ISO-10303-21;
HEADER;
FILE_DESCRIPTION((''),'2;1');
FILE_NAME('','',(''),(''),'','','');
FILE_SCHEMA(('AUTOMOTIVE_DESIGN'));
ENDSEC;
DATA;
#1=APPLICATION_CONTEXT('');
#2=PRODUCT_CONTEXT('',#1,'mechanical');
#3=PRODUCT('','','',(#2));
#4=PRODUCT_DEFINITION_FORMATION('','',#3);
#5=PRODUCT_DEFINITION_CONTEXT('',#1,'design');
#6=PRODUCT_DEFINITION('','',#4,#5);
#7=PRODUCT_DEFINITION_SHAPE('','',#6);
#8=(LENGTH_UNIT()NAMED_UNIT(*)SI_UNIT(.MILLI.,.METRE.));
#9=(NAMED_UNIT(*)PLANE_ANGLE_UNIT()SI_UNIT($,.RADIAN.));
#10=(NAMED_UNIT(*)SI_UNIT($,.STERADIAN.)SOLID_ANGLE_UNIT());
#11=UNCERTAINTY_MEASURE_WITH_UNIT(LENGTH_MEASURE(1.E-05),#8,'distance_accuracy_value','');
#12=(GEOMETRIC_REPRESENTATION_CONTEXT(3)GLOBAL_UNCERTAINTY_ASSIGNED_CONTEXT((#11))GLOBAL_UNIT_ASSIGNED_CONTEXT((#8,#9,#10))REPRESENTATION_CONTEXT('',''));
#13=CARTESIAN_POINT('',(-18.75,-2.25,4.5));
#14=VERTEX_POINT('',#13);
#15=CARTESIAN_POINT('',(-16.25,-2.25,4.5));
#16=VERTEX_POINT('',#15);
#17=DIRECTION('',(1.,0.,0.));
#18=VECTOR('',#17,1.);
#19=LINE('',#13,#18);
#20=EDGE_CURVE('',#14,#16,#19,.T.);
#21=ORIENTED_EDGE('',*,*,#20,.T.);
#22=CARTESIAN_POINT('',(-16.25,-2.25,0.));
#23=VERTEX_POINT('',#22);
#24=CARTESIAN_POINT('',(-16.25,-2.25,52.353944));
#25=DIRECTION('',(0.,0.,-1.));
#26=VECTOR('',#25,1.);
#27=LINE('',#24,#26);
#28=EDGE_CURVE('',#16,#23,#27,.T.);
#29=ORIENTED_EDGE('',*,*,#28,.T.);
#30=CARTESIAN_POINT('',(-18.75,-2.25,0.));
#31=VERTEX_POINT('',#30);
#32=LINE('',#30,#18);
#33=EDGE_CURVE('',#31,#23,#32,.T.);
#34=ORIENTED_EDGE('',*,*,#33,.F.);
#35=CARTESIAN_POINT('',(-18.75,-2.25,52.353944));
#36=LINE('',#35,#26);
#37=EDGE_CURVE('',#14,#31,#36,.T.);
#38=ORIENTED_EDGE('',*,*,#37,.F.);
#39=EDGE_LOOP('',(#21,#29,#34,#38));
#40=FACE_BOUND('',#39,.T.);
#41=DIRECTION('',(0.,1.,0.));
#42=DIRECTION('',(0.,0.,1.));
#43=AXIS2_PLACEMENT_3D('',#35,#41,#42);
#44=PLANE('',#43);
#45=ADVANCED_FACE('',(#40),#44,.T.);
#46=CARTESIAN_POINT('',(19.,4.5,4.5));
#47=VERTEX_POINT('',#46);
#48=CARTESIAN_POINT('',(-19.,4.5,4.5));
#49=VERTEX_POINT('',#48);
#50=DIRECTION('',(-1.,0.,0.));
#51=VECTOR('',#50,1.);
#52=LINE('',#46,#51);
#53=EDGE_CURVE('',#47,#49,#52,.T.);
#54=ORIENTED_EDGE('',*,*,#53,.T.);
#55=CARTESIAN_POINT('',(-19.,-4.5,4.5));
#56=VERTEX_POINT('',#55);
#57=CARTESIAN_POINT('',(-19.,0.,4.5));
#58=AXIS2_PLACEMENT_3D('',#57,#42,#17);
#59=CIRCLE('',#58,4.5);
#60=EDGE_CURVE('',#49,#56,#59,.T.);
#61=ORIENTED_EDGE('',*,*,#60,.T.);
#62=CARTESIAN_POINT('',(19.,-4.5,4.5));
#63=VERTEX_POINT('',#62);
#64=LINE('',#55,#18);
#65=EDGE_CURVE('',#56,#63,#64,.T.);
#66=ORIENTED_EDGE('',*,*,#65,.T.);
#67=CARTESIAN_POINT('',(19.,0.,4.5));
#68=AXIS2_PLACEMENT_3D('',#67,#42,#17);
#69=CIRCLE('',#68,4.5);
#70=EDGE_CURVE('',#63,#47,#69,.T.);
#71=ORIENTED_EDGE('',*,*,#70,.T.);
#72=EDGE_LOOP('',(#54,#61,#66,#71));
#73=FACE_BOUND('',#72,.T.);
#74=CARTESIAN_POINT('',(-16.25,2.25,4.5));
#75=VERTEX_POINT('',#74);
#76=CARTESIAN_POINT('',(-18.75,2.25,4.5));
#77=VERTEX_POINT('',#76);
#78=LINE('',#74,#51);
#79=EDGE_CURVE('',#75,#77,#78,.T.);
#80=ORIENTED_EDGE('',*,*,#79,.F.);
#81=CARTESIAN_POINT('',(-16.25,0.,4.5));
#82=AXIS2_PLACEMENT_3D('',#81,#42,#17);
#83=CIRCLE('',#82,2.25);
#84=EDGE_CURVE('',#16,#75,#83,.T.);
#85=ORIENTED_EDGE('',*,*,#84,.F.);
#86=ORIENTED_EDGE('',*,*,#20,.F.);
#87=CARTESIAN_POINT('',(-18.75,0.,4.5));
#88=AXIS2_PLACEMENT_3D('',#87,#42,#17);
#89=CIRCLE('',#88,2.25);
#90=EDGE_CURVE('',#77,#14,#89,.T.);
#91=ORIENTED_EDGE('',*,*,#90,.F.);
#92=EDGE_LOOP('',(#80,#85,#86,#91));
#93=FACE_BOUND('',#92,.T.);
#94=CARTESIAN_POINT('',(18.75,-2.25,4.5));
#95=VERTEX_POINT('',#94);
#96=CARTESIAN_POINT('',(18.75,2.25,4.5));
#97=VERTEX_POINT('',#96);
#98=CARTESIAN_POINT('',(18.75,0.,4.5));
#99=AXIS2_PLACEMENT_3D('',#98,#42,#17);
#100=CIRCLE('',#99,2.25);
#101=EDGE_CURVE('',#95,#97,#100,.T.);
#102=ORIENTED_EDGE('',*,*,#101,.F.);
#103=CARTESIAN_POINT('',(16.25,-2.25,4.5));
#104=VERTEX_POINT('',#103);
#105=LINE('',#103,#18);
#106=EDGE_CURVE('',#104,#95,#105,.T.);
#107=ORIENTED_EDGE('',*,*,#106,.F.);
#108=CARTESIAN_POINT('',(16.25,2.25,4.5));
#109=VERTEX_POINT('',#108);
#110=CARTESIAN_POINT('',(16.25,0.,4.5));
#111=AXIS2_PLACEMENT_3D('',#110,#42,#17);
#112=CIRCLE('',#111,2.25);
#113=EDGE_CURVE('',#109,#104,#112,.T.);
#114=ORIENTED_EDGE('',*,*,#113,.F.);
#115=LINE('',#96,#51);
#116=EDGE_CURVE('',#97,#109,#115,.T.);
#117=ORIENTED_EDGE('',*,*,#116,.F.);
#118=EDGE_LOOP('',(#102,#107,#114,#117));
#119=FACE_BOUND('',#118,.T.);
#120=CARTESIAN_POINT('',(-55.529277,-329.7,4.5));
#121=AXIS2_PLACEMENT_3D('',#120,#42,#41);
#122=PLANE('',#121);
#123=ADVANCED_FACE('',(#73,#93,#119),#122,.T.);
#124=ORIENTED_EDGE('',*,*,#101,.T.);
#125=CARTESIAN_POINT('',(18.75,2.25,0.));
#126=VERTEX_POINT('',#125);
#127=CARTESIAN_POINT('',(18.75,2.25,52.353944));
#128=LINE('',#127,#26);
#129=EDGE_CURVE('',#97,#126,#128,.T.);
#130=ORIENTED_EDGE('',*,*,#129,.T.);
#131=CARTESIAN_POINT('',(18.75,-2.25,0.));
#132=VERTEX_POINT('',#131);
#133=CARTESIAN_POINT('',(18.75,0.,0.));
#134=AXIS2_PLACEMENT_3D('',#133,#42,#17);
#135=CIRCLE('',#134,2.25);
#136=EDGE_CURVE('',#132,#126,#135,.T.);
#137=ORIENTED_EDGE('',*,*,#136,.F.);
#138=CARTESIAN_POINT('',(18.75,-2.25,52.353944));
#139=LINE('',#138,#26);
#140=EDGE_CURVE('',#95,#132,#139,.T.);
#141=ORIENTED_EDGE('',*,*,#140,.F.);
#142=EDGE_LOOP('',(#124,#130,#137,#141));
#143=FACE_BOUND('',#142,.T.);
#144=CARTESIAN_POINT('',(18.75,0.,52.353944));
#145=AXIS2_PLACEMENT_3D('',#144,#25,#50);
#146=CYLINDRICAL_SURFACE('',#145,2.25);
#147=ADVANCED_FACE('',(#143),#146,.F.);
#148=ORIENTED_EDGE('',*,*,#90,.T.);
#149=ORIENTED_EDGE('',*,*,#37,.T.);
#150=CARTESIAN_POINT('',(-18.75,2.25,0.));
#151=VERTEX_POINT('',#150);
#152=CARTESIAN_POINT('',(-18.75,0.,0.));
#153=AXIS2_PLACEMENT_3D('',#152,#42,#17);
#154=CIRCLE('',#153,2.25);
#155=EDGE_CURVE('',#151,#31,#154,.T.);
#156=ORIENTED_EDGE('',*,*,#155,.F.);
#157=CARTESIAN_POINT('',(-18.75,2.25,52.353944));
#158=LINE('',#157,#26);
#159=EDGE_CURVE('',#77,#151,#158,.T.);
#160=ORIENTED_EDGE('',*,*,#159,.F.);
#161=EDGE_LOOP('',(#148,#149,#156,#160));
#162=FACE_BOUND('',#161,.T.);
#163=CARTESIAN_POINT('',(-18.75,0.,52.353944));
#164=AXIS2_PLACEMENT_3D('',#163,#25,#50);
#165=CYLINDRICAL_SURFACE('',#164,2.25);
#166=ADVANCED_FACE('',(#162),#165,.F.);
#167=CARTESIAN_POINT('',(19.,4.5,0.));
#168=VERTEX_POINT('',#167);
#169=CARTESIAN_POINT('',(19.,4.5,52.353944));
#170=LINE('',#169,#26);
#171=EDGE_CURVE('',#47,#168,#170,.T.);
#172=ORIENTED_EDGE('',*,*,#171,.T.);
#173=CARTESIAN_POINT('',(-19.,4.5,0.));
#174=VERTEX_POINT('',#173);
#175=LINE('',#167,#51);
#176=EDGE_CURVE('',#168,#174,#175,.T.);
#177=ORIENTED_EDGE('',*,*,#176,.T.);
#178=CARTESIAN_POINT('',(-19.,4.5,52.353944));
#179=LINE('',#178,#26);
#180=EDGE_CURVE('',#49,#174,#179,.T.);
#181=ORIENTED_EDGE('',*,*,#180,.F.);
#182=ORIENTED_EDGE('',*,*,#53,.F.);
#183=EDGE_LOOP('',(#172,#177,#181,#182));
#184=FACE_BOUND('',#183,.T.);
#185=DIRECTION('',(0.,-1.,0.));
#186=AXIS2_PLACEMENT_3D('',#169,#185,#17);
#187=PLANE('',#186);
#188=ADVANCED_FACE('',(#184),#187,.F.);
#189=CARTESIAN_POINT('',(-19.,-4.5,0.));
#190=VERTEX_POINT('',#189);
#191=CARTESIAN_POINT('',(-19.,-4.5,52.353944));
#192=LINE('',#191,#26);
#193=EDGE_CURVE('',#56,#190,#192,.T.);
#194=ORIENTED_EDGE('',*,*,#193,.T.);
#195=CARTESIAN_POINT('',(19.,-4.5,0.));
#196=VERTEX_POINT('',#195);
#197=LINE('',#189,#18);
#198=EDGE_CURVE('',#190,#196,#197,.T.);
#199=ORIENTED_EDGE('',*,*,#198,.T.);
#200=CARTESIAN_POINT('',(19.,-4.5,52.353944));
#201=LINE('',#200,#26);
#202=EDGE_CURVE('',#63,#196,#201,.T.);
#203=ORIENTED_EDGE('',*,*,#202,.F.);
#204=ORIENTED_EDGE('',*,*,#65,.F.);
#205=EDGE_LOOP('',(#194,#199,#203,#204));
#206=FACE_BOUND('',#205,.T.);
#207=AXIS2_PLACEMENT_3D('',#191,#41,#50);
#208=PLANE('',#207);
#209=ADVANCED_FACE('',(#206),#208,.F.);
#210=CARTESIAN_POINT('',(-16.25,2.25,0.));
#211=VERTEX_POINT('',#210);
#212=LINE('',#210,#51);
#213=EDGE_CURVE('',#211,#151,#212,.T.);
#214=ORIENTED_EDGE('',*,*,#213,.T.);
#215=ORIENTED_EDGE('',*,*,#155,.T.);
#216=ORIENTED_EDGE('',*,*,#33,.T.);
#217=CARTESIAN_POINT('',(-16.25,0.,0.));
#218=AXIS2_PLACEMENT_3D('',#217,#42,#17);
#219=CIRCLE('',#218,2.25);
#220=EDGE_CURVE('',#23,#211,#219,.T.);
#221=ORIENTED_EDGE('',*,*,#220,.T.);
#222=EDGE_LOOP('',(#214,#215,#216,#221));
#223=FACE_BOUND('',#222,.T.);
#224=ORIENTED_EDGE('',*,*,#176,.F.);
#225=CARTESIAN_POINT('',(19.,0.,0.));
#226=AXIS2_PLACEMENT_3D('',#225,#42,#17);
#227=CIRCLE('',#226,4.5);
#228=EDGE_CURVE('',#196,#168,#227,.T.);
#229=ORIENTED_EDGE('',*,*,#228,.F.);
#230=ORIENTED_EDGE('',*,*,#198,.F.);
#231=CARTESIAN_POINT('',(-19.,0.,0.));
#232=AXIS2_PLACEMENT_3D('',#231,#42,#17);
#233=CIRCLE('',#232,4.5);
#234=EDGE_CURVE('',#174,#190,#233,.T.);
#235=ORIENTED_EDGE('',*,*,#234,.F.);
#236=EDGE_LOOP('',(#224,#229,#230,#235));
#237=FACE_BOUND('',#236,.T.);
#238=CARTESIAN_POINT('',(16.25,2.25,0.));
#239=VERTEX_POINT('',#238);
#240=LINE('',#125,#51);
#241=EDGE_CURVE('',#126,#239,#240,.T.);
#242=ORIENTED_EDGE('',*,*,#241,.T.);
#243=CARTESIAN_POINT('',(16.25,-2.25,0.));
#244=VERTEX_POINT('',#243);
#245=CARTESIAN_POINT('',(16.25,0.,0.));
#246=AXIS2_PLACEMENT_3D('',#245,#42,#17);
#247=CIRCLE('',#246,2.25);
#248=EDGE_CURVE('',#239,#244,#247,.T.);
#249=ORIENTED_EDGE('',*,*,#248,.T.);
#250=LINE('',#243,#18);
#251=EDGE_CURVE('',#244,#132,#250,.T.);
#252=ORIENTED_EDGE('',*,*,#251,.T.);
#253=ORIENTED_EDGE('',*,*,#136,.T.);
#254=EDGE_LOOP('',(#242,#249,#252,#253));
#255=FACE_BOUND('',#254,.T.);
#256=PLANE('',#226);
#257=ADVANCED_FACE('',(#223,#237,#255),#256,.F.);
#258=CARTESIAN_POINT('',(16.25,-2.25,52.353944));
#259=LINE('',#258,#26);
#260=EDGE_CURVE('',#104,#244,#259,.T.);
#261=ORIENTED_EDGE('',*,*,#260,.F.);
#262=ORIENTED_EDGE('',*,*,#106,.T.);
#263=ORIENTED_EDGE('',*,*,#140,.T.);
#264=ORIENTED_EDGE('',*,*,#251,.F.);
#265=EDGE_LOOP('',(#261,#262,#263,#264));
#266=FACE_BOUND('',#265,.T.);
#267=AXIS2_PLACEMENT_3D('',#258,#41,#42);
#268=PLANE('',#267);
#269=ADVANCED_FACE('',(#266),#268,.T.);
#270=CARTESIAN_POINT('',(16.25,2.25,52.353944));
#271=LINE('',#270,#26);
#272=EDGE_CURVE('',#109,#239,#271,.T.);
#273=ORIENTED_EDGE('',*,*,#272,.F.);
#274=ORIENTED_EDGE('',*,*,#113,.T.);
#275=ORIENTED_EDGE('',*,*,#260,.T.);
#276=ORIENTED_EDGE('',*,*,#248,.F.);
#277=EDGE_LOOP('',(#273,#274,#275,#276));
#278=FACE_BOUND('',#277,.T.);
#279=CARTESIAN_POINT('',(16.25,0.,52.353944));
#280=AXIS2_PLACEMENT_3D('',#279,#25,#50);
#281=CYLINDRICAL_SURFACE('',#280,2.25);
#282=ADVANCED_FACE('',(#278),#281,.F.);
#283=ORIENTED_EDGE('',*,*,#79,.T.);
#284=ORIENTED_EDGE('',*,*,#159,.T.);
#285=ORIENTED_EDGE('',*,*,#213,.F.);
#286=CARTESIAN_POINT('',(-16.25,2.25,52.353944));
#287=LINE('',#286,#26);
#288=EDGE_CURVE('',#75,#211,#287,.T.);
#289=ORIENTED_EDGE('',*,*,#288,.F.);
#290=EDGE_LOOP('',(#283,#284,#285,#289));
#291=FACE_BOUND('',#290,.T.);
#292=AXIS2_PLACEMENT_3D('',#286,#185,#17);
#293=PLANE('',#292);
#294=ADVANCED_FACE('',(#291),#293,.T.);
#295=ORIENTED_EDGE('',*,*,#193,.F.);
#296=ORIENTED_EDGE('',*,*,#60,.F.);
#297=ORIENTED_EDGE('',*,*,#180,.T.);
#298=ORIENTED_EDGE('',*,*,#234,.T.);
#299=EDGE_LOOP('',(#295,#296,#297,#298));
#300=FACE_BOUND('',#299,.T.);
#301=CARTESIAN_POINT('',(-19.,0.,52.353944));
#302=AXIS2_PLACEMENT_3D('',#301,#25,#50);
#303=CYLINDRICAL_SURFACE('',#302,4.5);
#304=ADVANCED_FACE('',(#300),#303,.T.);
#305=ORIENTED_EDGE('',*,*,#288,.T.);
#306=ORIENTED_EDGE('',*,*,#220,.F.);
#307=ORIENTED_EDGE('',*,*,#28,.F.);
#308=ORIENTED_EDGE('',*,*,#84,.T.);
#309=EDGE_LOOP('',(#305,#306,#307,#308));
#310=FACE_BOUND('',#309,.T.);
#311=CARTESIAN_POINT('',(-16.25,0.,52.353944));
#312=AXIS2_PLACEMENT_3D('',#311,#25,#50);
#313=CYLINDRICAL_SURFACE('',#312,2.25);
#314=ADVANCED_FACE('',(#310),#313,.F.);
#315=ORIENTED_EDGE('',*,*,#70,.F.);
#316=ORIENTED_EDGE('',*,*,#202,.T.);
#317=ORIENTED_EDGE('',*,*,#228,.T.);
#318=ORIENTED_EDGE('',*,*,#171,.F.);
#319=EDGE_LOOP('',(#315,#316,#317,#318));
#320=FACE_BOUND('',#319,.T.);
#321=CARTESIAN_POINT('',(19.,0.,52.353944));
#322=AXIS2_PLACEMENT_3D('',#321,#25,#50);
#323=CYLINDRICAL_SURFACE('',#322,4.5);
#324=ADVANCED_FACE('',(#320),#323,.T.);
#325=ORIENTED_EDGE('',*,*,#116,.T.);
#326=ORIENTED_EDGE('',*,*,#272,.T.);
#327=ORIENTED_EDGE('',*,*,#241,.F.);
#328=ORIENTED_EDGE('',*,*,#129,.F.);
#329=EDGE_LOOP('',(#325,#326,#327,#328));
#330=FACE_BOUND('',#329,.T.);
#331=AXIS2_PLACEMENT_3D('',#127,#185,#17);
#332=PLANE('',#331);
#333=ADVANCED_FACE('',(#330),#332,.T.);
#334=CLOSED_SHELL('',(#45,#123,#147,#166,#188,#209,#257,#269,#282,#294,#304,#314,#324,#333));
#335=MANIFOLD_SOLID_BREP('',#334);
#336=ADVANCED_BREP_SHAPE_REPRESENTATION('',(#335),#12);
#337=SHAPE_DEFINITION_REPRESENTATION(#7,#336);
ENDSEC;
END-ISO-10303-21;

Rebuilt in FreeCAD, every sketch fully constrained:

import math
import FreeCAD as App
import Part
import Sketcher
from FreeCAD import Vector
Q = App.Units.Quantity

doc = App.newDocument("Part")
params = doc.addObject("Spreadsheet::Sheet", "Params")
for row, (alias, value) in enumerate([
    ("sketch1_radius", "4.5 mm"),
    ("sketch1_width", "38 mm"),
    ("sketch1_radius2", "2.25 mm"),
    ("sketch1_width2", "2.5 mm"),
    ("pad1_length", "4.5 mm"),
], start=1):
    params.set(f"A{row}", alias)
    params.set(f"B{row}", "=" + value)
    params.setAlias(f"B{row}", alias)

body = doc.addObject("PartDesign::Body", "Body")

# Sketch on XY plane
sketch1 = doc.addObject("Sketcher::SketchObject", "Sketch")
body.addObject(sketch1)
sketch1.AttachmentSupport = (doc.XY_Plane, [""])
sketch1.MapMode = "FlatFace"
sketch1.addGeometry(Part.LineSegment(Vector(19, 4.5, 0), Vector(-19, 4.5, 0)), False)
sketch1.addGeometry(Part.ArcOfCircle(Part.Circle(Vector(-19, 0, 0), Vector(0, 0, 1), 4.5), math.radians(90), math.radians(270)), False)
sketch1.addGeometry(Part.LineSegment(Vector(-19, -4.5, 0), Vector(19, -4.5, 0)), False)
sketch1.addGeometry(Part.ArcOfCircle(Part.Circle(Vector(19, 0, 0), Vector(0, 0, 1), 4.5), math.radians(-90), math.radians(90)), False)
sketch1.addGeometry(Part.LineSegment(Vector(-18.8, 2.2, 0), Vector(-16.2, 2.2, 0)), False)
sketch1.addGeometry(Part.ArcOfCircle(Part.Circle(Vector(-16.2, 0, 0), Vector(0, 0, 1), 2.2), math.radians(-90), math.radians(90)), False)
sketch1.addGeometry(Part.LineSegment(Vector(-16.2, -2.2, 0), Vector(-18.8, -2.2, 0)), False)
sketch1.addGeometry(Part.ArcOfCircle(Part.Circle(Vector(-18.8, 0, 0), Vector(0, 0, 1), 2.2), math.radians(90), math.radians(270)), False)
sketch1.addGeometry(Part.LineSegment(Vector(16.2, 2.2, 0), Vector(18.8, 2.2, 0)), False)
sketch1.addGeometry(Part.ArcOfCircle(Part.Circle(Vector(18.8, 0, 0), Vector(0, 0, 1), 2.2), math.radians(-90), math.radians(90)), False)
sketch1.addGeometry(Part.LineSegment(Vector(18.8, -2.2, 0), Vector(16.2, -2.2, 0)), False)
sketch1.addGeometry(Part.ArcOfCircle(Part.Circle(Vector(16.2, 0, 0), Vector(0, 0, 1), 2.2), math.radians(90), math.radians(270)), False)
sketch1.addConstraint(Sketcher.Constraint("Tangent", 0, 2, 1, 1))
sketch1.addConstraint(Sketcher.Constraint("Tangent", 1, 2, 2, 1))
sketch1.addConstraint(Sketcher.Constraint("Tangent", 2, 2, 3, 1))
sketch1.addConstraint(Sketcher.Constraint("Tangent", 3, 2, 0, 1))
sketch1.addConstraint(Sketcher.Constraint("Tangent", 4, 2, 5, 2))
sketch1.addConstraint(Sketcher.Constraint("Tangent", 5, 1, 6, 1))
sketch1.addConstraint(Sketcher.Constraint("Tangent", 6, 2, 7, 2))
sketch1.addConstraint(Sketcher.Constraint("Tangent", 7, 1, 4, 1))
sketch1.addConstraint(Sketcher.Constraint("Tangent", 8, 2, 9, 2))
sketch1.addConstraint(Sketcher.Constraint("Tangent", 9, 1, 10, 1))
sketch1.addConstraint(Sketcher.Constraint("Tangent", 10, 2, 11, 2))
sketch1.addConstraint(Sketcher.Constraint("Tangent", 11, 1, 8, 1))
sketch1.addConstraint(Sketcher.Constraint("Horizontal", 0))
sketch1.addConstraint(Sketcher.Constraint("Horizontal", 2))
sketch1.addConstraint(Sketcher.Constraint("Horizontal", 4))
sketch1.addConstraint(Sketcher.Constraint("Horizontal", 6))
sketch1.addConstraint(Sketcher.Constraint("Horizontal", 8))
sketch1.addConstraint(Sketcher.Constraint("Horizontal", 10))
sketch1.addConstraint(Sketcher.Constraint("Equal", 7, 9))
sketch1.addConstraint(Sketcher.Constraint("Symmetric", 1, 3, 3, 3, -1, 1))
sketch1.addConstraint(Sketcher.Constraint("Symmetric", 7, 3, 9, 3, -1, 1))
sketch1.addConstraint(Sketcher.Constraint("Symmetric", 5, 3, 11, 3, -2))
sketch1.addConstraint(Sketcher.Constraint("Radius", 1, Q("4.5 mm")))
sketch1.addConstraint(Sketcher.Constraint("DistanceX", 0, 2, 0, 1, Q("38 mm")))
sketch1.addConstraint(Sketcher.Constraint("Radius", 5, Q("2.25 mm")))
sketch1.addConstraint(Sketcher.Constraint("DistanceX", 4, 1, 4, 2, Q("2.5 mm")))
sketch1.addConstraint(Sketcher.Constraint("DistanceX", 5, 3, 9, 3, Q("35 mm")))
sketch1.setExpression("Constraints[22]", "Params.sketch1_radius")
sketch1.setExpression("Constraints[23]", "Params.sketch1_width")
sketch1.setExpression("Constraints[24]", "Params.sketch1_radius2")
sketch1.setExpression("Constraints[25]", "Params.sketch1_width2")
pad1 = doc.addObject("PartDesign::Pad", "Pad")
body.addObject(pad1)
pad1.Profile = sketch1
pad1.setExpression("Length", "Params.pad1_length")

doc.recompute()
